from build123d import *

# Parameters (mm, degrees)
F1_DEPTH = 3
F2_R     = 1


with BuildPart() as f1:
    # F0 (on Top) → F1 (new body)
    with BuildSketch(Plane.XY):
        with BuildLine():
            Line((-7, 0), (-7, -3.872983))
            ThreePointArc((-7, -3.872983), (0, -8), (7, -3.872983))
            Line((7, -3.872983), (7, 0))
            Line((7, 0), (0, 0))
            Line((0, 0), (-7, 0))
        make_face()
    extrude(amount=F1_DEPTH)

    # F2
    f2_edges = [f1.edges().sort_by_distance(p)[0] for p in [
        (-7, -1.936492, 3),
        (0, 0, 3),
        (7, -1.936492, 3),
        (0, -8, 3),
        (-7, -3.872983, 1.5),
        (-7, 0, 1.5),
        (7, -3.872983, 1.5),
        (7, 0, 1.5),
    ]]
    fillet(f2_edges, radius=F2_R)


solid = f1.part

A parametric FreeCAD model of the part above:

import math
import FreeCAD as App
import Part
import Sketcher

V = App.Vector


def edges_at(feature, points):
    """Names of the edges that pass closest to the given points."""
    edges = feature.Shape.Edges
    near = lambda p: min(range(len(edges)), key=lambda i: edges[i].distToShape(Part.Vertex(*p))[0])
    return sorted({f"Edge{near(p) + 1}" for p in points})

doc = App.newDocument("Part")
params = doc.addObject("Spreadsheet::Sheet", "Params")
for row, (alias, value) in enumerate([
    ("sketch1_radius", "8 mm"),
    ("sketch1_width", "14 mm"),
    ("pad1_length", "3 mm"),
    ("fillet_radius", "1 mm"),
], start=1):
    params.set(f"A{row}", alias)
    params.set(f"B{row}", "=" + value)
    params.setAlias(f"B{row}", alias)

body = doc.addObject("PartDesign::Body", "Body")

# Sketch on XY plane
sketch1 = body.newObject("Sketcher::SketchObject", "Sketch")
sketch1.AttachmentSupport = (doc.getObject("XY_Plane"), [""])
sketch1.MapMode = "FlatFace"
sketch1.addGeometry([
    Part.LineSegment(V(-7, 0, 0), V(-7, -3.872983, 0)),
    Part.ArcOfCircle(Part.Circle(V(0, 0, 0), V(0, 0, 1), 8), math.radians(-151.04498), math.radians(-28.95502)),
    Part.LineSegment(V(7, -3.872983, 0), V(7, 0, 0)),
    Part.LineSegment(V(7, 0, 0), V(-7, 0, 0)),
], False)
sketch1.addConstraint([
    Sketcher.Constraint("Coincident", 0, 2, 1, 1),
    Sketcher.Constraint("Coincident", 1, 2, 2, 1),
    Sketcher.Constraint("Coincident", 2, 2, 3, 1),
    Sketcher.Constraint("Coincident", 3, 2, 0, 1),
    Sketcher.Constraint("Vertical", 0),
    Sketcher.Constraint("Vertical", 2),
    Sketcher.Constraint("Horizontal", 3),
    Sketcher.Constraint("Coincident", 1, 3, -1, 1),
    Sketcher.Constraint("Symmetric", 2, 2, 3, 2, -1, 1),
    Sketcher.Constraint("Radius", 1, 8.0),
    Sketcher.Constraint("DistanceX", 3, 2, 3, 1, 14.0),
])
sketch1.setExpression("Constraints[9]", "Params.sketch1_radius")
sketch1.setExpression("Constraints[10]", "Params.sketch1_width")
pad1 = body.newObject("PartDesign::Pad", "Pad")
pad1.Profile = sketch1
pad1.setExpression("Length", "Params.pad1_length")
doc.recompute()

fillet = body.newObject("PartDesign::Fillet", "Fillet")
fillet.Base = (pad1, edges_at(pad1, [
    (-7, -1.936, 3),
    (0, 0, 3),
    (7, -1.936, 3),
    (0, -8, 3),
    (-7, -3.873, 1.5),
    (-7, 0, 1.5),
    (7, -3.873, 1.5),
    (7, 0, 1.5),
]))
fillet.setExpression("Radius", "Params.fillet_radius")

doc.recompute()
